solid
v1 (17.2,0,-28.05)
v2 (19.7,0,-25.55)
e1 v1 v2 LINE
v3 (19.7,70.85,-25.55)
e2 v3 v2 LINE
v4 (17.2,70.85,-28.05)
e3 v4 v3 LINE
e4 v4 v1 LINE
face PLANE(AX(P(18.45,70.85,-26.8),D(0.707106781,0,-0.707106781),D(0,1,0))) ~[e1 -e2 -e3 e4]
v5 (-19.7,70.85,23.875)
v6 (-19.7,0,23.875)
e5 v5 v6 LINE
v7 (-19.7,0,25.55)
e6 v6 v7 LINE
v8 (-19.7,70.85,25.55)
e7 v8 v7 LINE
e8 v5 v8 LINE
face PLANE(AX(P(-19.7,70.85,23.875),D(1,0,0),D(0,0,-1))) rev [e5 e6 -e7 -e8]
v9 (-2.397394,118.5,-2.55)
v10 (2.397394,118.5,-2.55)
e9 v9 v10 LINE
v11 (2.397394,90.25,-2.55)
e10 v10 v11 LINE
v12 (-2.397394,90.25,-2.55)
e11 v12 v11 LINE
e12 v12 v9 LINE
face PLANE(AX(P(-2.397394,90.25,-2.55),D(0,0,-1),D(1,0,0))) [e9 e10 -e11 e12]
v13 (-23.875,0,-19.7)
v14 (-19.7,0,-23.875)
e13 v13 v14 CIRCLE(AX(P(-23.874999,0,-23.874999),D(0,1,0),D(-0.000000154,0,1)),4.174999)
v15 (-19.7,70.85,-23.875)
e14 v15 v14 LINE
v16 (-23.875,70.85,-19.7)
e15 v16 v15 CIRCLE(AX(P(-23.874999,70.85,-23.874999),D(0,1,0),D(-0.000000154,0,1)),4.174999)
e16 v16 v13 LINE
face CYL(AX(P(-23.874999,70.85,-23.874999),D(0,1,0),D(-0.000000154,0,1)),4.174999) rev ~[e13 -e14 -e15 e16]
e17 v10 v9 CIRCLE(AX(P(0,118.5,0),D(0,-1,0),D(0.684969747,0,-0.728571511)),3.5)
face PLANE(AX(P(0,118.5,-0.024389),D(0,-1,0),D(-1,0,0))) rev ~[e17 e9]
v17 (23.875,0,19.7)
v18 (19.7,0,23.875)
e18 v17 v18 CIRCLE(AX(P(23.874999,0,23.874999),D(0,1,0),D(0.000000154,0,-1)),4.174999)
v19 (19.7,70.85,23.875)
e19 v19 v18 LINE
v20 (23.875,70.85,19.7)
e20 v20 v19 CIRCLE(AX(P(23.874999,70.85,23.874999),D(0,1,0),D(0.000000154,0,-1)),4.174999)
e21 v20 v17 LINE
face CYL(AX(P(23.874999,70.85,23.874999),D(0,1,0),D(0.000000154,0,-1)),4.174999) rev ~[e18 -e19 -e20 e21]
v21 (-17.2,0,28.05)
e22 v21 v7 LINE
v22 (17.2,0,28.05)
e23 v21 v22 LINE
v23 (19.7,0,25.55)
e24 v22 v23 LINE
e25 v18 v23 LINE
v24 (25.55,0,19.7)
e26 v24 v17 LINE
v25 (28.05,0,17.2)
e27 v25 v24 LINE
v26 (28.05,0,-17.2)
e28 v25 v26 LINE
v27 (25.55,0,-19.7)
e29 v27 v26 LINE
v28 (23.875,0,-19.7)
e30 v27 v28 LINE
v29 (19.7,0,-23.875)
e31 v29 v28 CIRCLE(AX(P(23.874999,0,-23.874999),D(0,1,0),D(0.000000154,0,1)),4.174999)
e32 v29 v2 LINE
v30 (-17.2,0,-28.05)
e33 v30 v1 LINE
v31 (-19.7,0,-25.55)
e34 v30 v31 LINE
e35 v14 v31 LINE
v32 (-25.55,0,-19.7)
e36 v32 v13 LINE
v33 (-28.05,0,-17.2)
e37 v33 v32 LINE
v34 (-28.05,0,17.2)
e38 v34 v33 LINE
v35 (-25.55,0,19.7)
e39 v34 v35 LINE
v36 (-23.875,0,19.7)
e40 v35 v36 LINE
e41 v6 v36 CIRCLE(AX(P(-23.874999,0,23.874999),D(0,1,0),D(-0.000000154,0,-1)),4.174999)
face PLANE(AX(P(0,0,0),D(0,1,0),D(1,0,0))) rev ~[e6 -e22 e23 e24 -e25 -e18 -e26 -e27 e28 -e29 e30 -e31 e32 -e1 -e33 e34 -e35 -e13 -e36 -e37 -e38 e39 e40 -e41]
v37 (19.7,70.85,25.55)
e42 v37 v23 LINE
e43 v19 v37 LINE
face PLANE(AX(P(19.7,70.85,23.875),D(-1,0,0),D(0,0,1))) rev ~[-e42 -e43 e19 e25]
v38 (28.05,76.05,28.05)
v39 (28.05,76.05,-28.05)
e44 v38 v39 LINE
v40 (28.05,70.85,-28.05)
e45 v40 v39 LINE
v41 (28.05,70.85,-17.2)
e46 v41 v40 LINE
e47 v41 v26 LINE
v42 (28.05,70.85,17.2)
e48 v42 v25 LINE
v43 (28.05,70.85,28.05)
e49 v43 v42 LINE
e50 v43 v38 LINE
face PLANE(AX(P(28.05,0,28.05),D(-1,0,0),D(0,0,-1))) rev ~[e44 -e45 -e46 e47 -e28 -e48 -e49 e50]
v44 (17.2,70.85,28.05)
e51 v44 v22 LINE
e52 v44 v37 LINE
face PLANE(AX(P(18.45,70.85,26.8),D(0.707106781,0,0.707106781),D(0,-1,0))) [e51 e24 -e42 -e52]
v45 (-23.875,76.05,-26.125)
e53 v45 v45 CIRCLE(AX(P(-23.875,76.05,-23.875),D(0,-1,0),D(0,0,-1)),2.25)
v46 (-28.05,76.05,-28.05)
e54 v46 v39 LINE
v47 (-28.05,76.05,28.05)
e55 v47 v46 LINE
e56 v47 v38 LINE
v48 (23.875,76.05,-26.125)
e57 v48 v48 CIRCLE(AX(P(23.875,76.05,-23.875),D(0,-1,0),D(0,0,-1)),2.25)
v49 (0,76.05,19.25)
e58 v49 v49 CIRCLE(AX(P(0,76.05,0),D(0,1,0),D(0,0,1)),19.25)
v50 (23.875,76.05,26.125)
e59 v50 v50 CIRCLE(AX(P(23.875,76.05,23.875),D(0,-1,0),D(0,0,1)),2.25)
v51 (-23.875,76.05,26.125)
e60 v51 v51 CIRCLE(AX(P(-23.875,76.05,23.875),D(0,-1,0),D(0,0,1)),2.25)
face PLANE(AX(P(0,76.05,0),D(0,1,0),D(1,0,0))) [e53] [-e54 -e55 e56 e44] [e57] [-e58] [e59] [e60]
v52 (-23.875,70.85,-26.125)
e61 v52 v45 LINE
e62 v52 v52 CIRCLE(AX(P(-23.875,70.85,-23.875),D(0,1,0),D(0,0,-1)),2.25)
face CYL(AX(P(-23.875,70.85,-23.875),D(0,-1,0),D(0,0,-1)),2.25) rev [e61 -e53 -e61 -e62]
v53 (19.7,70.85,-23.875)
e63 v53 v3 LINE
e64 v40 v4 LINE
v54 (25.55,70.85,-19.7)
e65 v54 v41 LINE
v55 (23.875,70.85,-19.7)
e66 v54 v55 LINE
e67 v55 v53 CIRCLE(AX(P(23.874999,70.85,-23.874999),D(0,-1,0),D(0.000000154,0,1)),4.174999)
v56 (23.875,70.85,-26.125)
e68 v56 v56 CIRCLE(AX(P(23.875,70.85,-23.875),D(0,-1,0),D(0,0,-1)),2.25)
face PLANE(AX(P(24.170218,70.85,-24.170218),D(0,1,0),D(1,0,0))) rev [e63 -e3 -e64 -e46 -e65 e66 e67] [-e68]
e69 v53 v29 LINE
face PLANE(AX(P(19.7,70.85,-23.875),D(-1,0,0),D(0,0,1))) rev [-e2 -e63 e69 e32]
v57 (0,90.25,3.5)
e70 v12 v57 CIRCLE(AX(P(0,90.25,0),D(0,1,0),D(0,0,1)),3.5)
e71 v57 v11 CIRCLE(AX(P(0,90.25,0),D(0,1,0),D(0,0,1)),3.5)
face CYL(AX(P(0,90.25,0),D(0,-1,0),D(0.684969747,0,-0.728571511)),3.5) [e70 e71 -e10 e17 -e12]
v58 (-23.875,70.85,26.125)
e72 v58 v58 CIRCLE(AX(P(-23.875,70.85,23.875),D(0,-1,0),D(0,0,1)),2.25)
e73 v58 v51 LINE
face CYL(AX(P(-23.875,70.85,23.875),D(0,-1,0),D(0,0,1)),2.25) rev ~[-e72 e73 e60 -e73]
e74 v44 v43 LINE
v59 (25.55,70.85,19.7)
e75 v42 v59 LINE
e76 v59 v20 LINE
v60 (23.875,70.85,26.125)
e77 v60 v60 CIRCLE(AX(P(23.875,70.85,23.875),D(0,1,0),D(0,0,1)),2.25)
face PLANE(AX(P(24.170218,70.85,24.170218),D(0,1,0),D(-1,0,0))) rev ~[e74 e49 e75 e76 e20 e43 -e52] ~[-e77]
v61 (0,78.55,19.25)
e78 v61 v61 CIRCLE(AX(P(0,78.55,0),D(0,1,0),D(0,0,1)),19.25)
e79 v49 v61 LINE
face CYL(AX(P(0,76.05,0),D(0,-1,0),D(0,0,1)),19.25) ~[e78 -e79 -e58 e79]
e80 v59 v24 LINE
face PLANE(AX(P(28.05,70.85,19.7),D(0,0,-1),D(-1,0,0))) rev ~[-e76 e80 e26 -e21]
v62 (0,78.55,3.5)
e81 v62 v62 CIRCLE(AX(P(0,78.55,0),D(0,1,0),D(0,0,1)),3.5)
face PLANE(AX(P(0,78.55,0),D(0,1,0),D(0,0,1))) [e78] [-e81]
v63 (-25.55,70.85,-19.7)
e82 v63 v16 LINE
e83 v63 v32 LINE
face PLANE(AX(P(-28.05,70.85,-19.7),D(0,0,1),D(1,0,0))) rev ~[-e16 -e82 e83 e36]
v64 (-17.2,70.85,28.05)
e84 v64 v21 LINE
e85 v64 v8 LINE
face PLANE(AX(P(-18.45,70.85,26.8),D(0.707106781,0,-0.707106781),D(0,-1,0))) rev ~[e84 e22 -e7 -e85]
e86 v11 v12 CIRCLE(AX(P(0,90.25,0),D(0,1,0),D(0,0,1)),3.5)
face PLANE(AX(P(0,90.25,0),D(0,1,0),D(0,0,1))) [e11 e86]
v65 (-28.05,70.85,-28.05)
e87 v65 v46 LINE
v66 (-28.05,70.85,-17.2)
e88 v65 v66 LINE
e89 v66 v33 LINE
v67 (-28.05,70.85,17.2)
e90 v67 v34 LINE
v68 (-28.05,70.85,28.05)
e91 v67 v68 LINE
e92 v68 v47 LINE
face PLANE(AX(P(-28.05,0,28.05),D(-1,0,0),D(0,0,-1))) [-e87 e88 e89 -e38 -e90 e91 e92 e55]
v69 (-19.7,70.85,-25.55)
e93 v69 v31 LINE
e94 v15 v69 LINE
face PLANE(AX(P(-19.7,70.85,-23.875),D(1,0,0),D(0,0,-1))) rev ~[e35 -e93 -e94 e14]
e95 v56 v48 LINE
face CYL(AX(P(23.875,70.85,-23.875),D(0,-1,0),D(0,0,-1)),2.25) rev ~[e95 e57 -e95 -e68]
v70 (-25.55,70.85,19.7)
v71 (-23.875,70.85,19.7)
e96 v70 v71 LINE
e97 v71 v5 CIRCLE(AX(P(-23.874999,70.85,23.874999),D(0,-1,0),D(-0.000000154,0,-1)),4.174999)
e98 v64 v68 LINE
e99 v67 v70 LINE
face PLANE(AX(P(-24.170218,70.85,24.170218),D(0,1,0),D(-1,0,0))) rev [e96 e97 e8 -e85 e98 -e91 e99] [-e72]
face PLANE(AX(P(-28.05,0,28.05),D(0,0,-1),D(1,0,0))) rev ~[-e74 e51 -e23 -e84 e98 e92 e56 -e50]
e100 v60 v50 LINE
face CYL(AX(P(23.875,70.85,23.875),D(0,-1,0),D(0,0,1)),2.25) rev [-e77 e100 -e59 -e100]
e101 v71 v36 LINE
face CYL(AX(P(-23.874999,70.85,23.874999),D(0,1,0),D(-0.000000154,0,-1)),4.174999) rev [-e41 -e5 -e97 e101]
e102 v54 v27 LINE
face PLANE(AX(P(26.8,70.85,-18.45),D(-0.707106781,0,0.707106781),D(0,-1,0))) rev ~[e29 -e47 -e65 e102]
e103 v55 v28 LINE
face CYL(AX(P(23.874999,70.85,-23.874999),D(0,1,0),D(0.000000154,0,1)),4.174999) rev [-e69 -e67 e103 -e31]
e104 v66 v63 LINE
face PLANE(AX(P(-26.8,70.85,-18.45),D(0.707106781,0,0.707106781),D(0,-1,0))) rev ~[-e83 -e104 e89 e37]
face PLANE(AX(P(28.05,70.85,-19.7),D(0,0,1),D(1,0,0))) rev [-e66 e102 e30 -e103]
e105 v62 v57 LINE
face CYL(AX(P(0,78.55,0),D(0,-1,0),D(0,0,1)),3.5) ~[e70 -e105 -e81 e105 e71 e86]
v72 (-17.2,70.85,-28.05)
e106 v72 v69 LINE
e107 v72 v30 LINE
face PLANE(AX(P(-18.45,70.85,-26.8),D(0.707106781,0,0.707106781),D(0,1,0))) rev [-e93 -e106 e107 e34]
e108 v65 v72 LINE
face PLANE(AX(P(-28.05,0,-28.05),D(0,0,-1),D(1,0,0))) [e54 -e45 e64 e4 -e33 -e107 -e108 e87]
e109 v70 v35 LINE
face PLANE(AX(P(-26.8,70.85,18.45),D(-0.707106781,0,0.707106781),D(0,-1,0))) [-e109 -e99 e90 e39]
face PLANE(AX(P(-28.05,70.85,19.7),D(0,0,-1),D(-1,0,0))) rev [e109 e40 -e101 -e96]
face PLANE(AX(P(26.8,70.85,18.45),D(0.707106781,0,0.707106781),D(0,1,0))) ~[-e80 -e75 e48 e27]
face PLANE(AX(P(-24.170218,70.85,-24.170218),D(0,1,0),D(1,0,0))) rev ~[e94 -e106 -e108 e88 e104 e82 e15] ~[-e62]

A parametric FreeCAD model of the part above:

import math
import FreeCAD as App
import Part
import Sketcher
Q = App.Units.Quantity


def edges_at(feature, points):
    """Names of the edges that pass closest to the given points."""
    edges = feature.Shape.Edges
    near = lambda p: min(range(len(edges)), key=lambda i: edges[i].distToShape(Part.Vertex(*p))[0])
    return sorted({f"Edge{near(p) + 1}" for p in points})


def add_polygon(sketch, points):
    """Adds a closed chain of lines whose ends are joined by coincident constraints."""
    first, n = sketch.GeometryCount, len(points)
    for a, b in zip(points, points[1:] + points[:1]):
        sketch.addGeometry(Part.LineSegment(App.Vector(*a, 0), App.Vector(*b, 0)), False)
    for i in range(n):
        sketch.addConstraint(Sketcher.Constraint("Coincident", first + i, 2, first + (i + 1) % n, 1))

doc = App.newDocument("Part")
body = doc.addObject("PartDesign::Body", "Body")

# Sketch on XZ plane
sketch1 = doc.addObject("Sketcher::SketchObject", "Sketch")
body.addObject(sketch1)
sketch1.AttachmentSupport = (doc.XZ_Plane, [""])
sketch1.MapMode = "FlatFace"
add_polygon(sketch1, [(-28.05, -28.05), (-28.05, 28.05), (28.05, 28.05), (28.05, -28.05)])  # lines 0-3
sketch1.addConstraint(Sketcher.Constraint("Vertical", 0))
sketch1.addConstraint(Sketcher.Constraint("Horizontal", 1))
sketch1.addConstraint(Sketcher.Constraint("Vertical", 2))
sketch1.addConstraint(Sketcher.Constraint("Horizontal", 3))
sketch1.addConstraint(Sketcher.Constraint("Symmetric", 0, 2, 2, 2, -1, 1))
sketch1.addConstraint(Sketcher.Constraint("Equal", 3, 0))
sketch1.addConstraint(Sketcher.Constraint("DistanceX", 1, 1, 1, 2, Q("56.1 mm")))
pad1 = doc.addObject("PartDesign::Pad", "Pad")
body.addObject(pad1)
pad1.Profile = sketch1
pad1.Length = 76.05
pad1.Reversed = True

# Sketch on XZ plane
sketch2 = doc.addObject("Sketcher::SketchObject", "Sketch001")
body.addObject(sketch2)
sketch2.AttachmentSupport = (doc.XZ_Plane, [""])
sketch2.MapMode = "FlatFace"
sketch2.AttachmentOffset = App.Placement(App.Vector(0, 0, -70.85), App.Rotation())
sketch2.addGeometry(Part.LineSegment(App.Vector(-28.05, -19.7, 0), App.Vector(-23.875, -19.7, 0)), False)
sketch2.addGeometry(Part.ArcOfCircle(Part.Circle(App.Vector(-23.874999, -23.874999, 0), App.Vector(0, 0, 1), 4.174999), math.radians(-0.000009), math.radians(90.000009)), False)
sketch2.addGeometry(Part.LineSegment(App.Vector(-19.7, -23.875, 0), App.Vector(-19.7, -28.05, 0)), False)
sketch2.addGeometry(Part.LineSegment(App.Vector(-19.7, -28.05, 0), App.Vector(-28.05, -28.05, 0)), False)
sketch2.addGeometry(Part.LineSegment(App.Vector(-28.05, -28.05, 0), App.Vector(-28.05, -19.7, 0)), False)
sketch2.addConstraint(Sketcher.Constraint("Tangent", 0, 2, 1, 2))
sketch2.addConstraint(Sketcher.Constraint("Tangent", 1, 1, 2, 1))
sketch2.addConstraint(Sketcher.Constraint("Coincident", 2, 2, 3, 1))
sketch2.addConstraint(Sketcher.Constraint("Coincident", 3, 2, 4, 1))
sketch2.addConstraint(Sketcher.Constraint("Coincident", 4, 2, 0, 1))
sketch2.addConstraint(Sketcher.Constraint("Horizontal", 0))
sketch2.addConstraint(Sketcher.Constraint("Vertical", 2))
sketch2.addConstraint(Sketcher.Constraint("Horizontal", 3))
sketch2.addConstraint(Sketcher.Constraint("Vertical", 4))
sketch2.addConstraint(Sketcher.Constraint("Equal", 0, 2))
sketch2.addConstraint(Sketcher.Constraint("Radius", 1, Q("4.174999 mm")))
sketch2.addConstraint(Sketcher.Constraint("DistanceX", 3, 2, 3, 1, Q("8.35 mm")))
sketch2.addConstraint(Sketcher.Constraint("DistanceY", 0, 2, -1, 1, Q("19.7 mm")))
sketch2.addConstraint(Sketcher.Constraint("DistanceX", 1, 1, -1, 1, Q("19.7 mm")))
pocket1 = doc.addObject("PartDesign::Pocket", "Pocket")
body.addObject(pocket1)
pocket1.Profile = sketch2
pocket1.Type = "ThroughAll"
pocket1.Reversed = True
doc.recompute()

mirrored = doc.addObject("PartDesign::Mirrored", "Mirrored")
body.addObject(mirrored)
mirrored.Originals = [pocket1]
mirrored.MirrorPlane = (doc.YZ_Plane, [""])
body.Tip = mirrored
doc.recompute()

mirrored2 = doc.addObject("PartDesign::Mirrored", "Mirrored001")
body.addObject(mirrored2)
mirrored2.Originals = [pocket1]
mirrored2.MirrorPlane = (doc.XY_Plane, [""])
body.Tip = mirrored2

# Sketch on XZ plane
sketch3 = doc.addObject("Sketcher::SketchObject", "Sketch002")
body.addObject(sketch3)
sketch3.AttachmentSupport = (doc.XZ_Plane, [""])
sketch3.MapMode = "FlatFace"
sketch3.AttachmentOffset = App.Placement(App.Vector(0, 0, -70.85), App.Rotation())
sketch3.addGeometry(Part.LineSegment(App.Vector(28.05, 19.7, 0), App.Vector(23.875, 19.7, 0)), False)
sketch3.addGeometry(Part.ArcOfCircle(Part.Circle(App.Vector(23.874999, 23.874999, 0), App.Vector(0, 0, 1), 4.174999), math.radians(179.999991), math.radians(270.000009)), False)
sketch3.addGeometry(Part.LineSegment(App.Vector(19.7, 23.875, 0), App.Vector(19.7, 28.05, 0)), False)
sketch3.addGeometry(Part.LineSegment(App.Vector(19.7, 28.05, 0), App.Vector(28.05, 28.05, 0)), False)
sketch3.addGeometry(Part.LineSegment(App.Vector(28.05, 28.05, 0), App.Vector(28.05, 19.7, 0)), False)
sketch3.addConstraint(Sketcher.Constraint("Tangent", 0, 2, 1, 2))
sketch3.addConstraint(Sketcher.Constraint("Tangent", 1, 1, 2, 1))
sketch3.addConstraint(Sketcher.Constraint("Coincident", 2, 2, 3, 1))
sketch3.addConstraint(Sketcher.Constraint("Coincident", 3, 2, 4, 1))
sketch3.addConstraint(Sketcher.Constraint("Coincident", 4, 2, 0, 1))
sketch3.addConstraint(Sketcher.Constraint("Horizontal", 0))
sketch3.addConstraint(Sketcher.Constraint("Vertical", 2))
sketch3.addConstraint(Sketcher.Constraint("Horizontal", 3))
sketch3.addConstraint(Sketcher.Constraint("Vertical", 4))
sketch3.addConstraint(Sketcher.Constraint("Equal", 0, 2))
sketch3.addConstraint(Sketcher.Constraint("Radius", 1, Q("4.174999 mm")))
sketch3.addConstraint(Sketcher.Constraint("DistanceX", 3, 1, 3, 2, Q("8.35 mm")))
sketch3.addConstraint(Sketcher.Constraint("DistanceY", -1, 1, 0, 2, Q("19.7 mm")))
sketch3.addConstraint(Sketcher.Constraint("DistanceX", -1, 1, 1, 1, Q("19.7 mm")))
pocket2 = doc.addObject("PartDesign::Pocket", "Pocket001")
body.addObject(pocket2)
pocket2.Profile = sketch3
pocket2.Type = "ThroughAll"
pocket2.Reversed = True
doc.recompute()

chamfer = doc.addObject("PartDesign::Chamfer", "Chamfer")
body.addObject(chamfer)
chamfer.Base = (pocket2, edges_at(pocket2, [
    (-28.05, 35.425, -19.7),
    (-19.7, 35.425, -28.05),
    (-28.05, 35.425, 19.7),
    (-19.7, 35.425, 28.05),
    (28.05, 35.425, -19.7),
    (19.7, 35.425, -28.05),
    (28.05, 35.425, 19.7),
    (19.7, 35.425, 28.05),
]))
chamfer.Size = 2.5

# Sketch on XZ plane
sketch4 = doc.addObject("Sketcher::SketchObject", "Sketch003")
body.addObject(sketch4)
sketch4.AttachmentSupport = (doc.XZ_Plane, [""])
sketch4.MapMode = "FlatFace"
sketch4.AttachmentOffset = App.Placement(App.Vector(0, 0, -70.85), App.Rotation())
sketch4.addGeometry(Part.Circle(App.Vector(23.875, -23.875, 0), App.Vector(0, 0, 1), 2.25), False)
sketch4.addConstraint(Sketcher.Constraint("Diameter", 0, Q("4.5 mm")))
sketch4.addConstraint(Sketcher.Constraint("DistanceX", -1, 1, 0, 3, Q("23.875 mm")))
sketch4.addConstraint(Sketcher.Constraint("DistanceY", 0, 3, -1, 1, Q("23.875 mm")))
pocket3 = doc.addObject("PartDesign::Pocket", "Pocket002")
body.addObject(pocket3)
pocket3.Profile = sketch4
pocket3.Type = "ThroughAll"
doc.recompute()

mirrored3 = doc.addObject("PartDesign::Mirrored", "Mirrored002")
body.addObject(mirrored3)
mirrored3.Originals = [pocket3]
mirrored3.MirrorPlane = (doc.YZ_Plane, [""])
body.Tip = mirrored3
doc.recompute()

mirrored4 = doc.addObject("PartDesign::Mirrored", "Mirrored003")
body.addObject(mirrored4)
mirrored4.Originals = [pocket3]
mirrored4.MirrorPlane = (doc.XY_Plane, [""])
body.Tip = mirrored4

# Sketch on XZ plane
sketch5 = doc.addObject("Sketcher::SketchObject", "Sketch004")
body.addObject(sketch5)
sketch5.AttachmentSupport = (doc.XZ_Plane, [""])
sketch5.MapMode = "FlatFace"
sketch5.AttachmentOffset = App.Placement(App.Vector(0, 0, -70.85), App.Rotation())
sketch5.addGeometry(Part.Circle(App.Vector(-23.875, 23.875, 0), App.Vector(0, 0, 1), 2.25), False)
sketch5.addConstraint(Sketcher.Constraint("Diameter", 0, Q("4.5 mm")))
sketch5.addConstraint(Sketcher.Constraint("DistanceX", 0, 3, -1, 1, Q("23.875 mm")))
sketch5.addConstraint(Sketcher.Constraint("DistanceY", -1, 1, 0, 3, Q("23.875 mm")))
pocket4 = doc.addObject("PartDesign::Pocket", "Pocket003")
body.addObject(pocket4)
pocket4.Profile = sketch5
pocket4.Type = "ThroughAll"

# Sketch on XZ plane
sketch6 = doc.addObject("Sketcher::SketchObject", "Sketch005")
body.addObject(sketch6)
sketch6.AttachmentSupport = (doc.XZ_Plane, [""])
sketch6.MapMode = "FlatFace"
sketch6.AttachmentOffset = App.Placement(App.Vector(0, 0, -76.05), App.Rotation())
sketch6.addGeometry(Part.Circle(App.Vector(0, 0, 0), App.Vector(0, 0, 1), 19.25), False)
sketch6.addConstraint(Sketcher.Constraint("Coincident", 0, 3, -1, 1))
sketch6.addConstraint(Sketcher.Constraint("Diameter", 0, Q("38.5 mm")))
pad2 = doc.addObject("PartDesign::Pad", "Pad001")
body.addObject(pad2)
pad2.Profile = sketch6
pad2.Length = 2.5
pad2.Reversed = True

# Sketch on XZ plane
sketch7 = doc.addObject("Sketcher::SketchObject", "Sketch006")
body.addObject(sketch7)
sketch7.AttachmentSupport = (doc.XZ_Plane, [""])
sketch7.MapMode = "FlatFace"
sketch7.AttachmentOffset = App.Placement(App.Vector(0, 0, -78.55), App.Rotation())
sketch7.addGeometry(Part.Circle(App.Vector(0, 0, 0), App.Vector(0, 0, 1), 3.5), False)
sketch7.addConstraint(Sketcher.Constraint("Coincident", 0, 3, -1, 1))
sketch7.addConstraint(Sketcher.Constraint("Diameter", 0, Q("7 mm")))
pad3 = doc.addObject("PartDesign::Pad", "Pad002")
body.addObject(pad3)
pad3.Profile = sketch7
pad3.Length = 11.7
pad3.Reversed = True

# Sketch on XZ plane
sketch8 = doc.addObject("Sketcher::SketchObject", "Sketch007")
body.addObject(sketch8)
sketch8.AttachmentSupport = (doc.XZ_Plane, [""])
sketch8.MapMode = "FlatFace"
sketch8.AttachmentOffset = App.Placement(App.Vector(0, 0, -90.25), App.Rotation())
sketch8.addGeometry(Part.LineSegment(App.Vector(2.397394, -2.55, 0), App.Vector(-2.397394, -2.55, 0)), False)
sketch8.addGeometry(Part.ArcOfCircle(Part.Circle(App.Vector(0, 0, 0), App.Vector(0, 0, 1), 3.5), math.radians(-46.766772), math.radians(226.766772)), False)
sketch8.addConstraint(Sketcher.Constraint("Coincident", 0, 1, 1, 1))
sketch8.addConstraint(Sketcher.Constraint("Coincident", 1, 2, 0, 2))
sketch8.addConstraint(Sketcher.Constraint("Horizontal", 0))
sketch8.addConstraint(Sketcher.Constraint("Coincident", 1, 3, -1, 1))
sketch8.addConstraint(Sketcher.Constraint("Radius", 1, Q("3.5 mm")))
sketch8.addConstraint(Sketcher.Constraint("DistanceY", 0, 1, -1, 1, Q("2.55 mm")))
pad4 = doc.addObject("PartDesign::Pad", "Pad003")
body.addObject(pad4)
pad4.Profile = sketch8
pad4.Length = 28.15
pad4.Reversed = True

# Sketch on XZ plane
sketch9 = doc.addObject("Sketcher::SketchObject", "Sketch008")
body.addObject(sketch9)
sketch9.AttachmentSupport = (doc.XZ_Plane, [""])
sketch9.MapMode = "FlatFace"
sketch9.AttachmentOffset = App.Placement(App.Vector(0, 0, -78.55), App.Rotation())
sketch9.addGeometry(Part.LineSegment(App.Vector(2.397394, -2.55, 0), App.Vector(-2.397394, -2.55, 0)), False)
sketch9.addGeometry(Part.ArcOfCircle(Part.Circle(App.Vector(0, 0, 0), App.Vector(0, 0, 1), 3.5), math.radians(-46.766772), math.radians(226.766772)), False)
sketch9.addConstraint(Sketcher.Constraint("Coincident", 0, 1, 1, 1))
sketch9.addConstraint(Sketcher.Constraint("Coincident", 1, 2, 0, 2))
sketch9.addConstraint(Sketcher.Constraint("Horizontal", 0))
sketch9.addConstraint(Sketcher.Constraint("Coincident", 1, 3, -1, 1))
sketch9.addConstraint(Sketcher.Constraint("Radius", 1, Q("3.5 mm")))
sketch9.addConstraint(Sketcher.Constraint("DistanceY", 0, 1, -1, 1, Q("2.55 mm")))
pad5 = doc.addObject("PartDesign::Pad", "Pad004")
body.addObject(pad5)
pad5.Profile = sketch9
pad5.Length = 39.95
pad5.Reversed = True

doc.recompute()
